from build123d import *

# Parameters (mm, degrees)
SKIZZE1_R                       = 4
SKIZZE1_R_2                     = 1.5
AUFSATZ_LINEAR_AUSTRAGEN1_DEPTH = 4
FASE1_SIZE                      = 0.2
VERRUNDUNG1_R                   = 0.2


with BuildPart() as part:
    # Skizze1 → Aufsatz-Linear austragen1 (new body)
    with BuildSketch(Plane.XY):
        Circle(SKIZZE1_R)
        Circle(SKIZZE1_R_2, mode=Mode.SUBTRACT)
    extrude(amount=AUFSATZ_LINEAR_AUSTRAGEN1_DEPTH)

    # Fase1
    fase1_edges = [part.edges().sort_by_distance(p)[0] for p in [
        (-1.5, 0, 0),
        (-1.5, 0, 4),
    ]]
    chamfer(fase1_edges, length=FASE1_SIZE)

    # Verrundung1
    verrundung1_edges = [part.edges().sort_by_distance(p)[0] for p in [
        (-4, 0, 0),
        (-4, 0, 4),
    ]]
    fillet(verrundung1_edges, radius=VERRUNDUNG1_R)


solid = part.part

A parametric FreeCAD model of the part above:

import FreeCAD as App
import Part
import Sketcher
from FreeCAD import Vector


def edges_at(feature, points):
    """Names of the edges that pass closest to the given points."""
    edges = feature.Shape.Edges
    near = lambda p: min(range(len(edges)), key=lambda i: edges[i].distToShape(Part.Vertex(*p))[0])
    return sorted({f"Edge{near(p) + 1}" for p in points})

doc = App.newDocument("Part")
body = doc.addObject("PartDesign::Body", "Body")

# Sketch on XY plane
sketch1 = doc.addObject("Sketcher::SketchObject", "Sketch")
body.addObject(sketch1)
sketch1.AttachmentSupport = (doc.XY_Plane, [""])
sketch1.MapMode = "FlatFace"
sketch1.addGeometry(Part.Circle(Vector(0, 0, 0), Vector(0, 0, 1), 4), False)
sketch1.addGeometry(Part.Circle(Vector(0, 0, 0), Vector(0, 0, 1), 1.5), False)
sketch1.addConstraint(Sketcher.Constraint("Coincident", 0, 3, -1, 1))
sketch1.addConstraint(Sketcher.Constraint("Coincident", 1, 3, -1, 1))
sketch1.addConstraint(Sketcher.Constraint("Diameter", 0, 8.0))
sketch1.addConstraint(Sketcher.Constraint("Diameter", 1, 3.0))
pad1 = doc.addObject("PartDesign::Pad", "Pad")
body.addObject(pad1)
pad1.Profile = sketch1
pad1.Length = 4
doc.recompute()

chamfer = doc.addObject("PartDesign::Chamfer", "Chamfer")
body.addObject(chamfer)
chamfer.Base = (pad1, edges_at(pad1, [(-1.5, 0, 0), (-1.5, 0, 4)]))
chamfer.Size = 0.2
doc.recompute()

fillet = doc.addObject("PartDesign::Fillet", "Fillet")
body.addObject(fillet)
fillet.Base = (chamfer, edges_at(chamfer, [(-4, 0, 0), (-4, 0, 4)]))
fillet.Radius = 0.2

doc.recompute()
